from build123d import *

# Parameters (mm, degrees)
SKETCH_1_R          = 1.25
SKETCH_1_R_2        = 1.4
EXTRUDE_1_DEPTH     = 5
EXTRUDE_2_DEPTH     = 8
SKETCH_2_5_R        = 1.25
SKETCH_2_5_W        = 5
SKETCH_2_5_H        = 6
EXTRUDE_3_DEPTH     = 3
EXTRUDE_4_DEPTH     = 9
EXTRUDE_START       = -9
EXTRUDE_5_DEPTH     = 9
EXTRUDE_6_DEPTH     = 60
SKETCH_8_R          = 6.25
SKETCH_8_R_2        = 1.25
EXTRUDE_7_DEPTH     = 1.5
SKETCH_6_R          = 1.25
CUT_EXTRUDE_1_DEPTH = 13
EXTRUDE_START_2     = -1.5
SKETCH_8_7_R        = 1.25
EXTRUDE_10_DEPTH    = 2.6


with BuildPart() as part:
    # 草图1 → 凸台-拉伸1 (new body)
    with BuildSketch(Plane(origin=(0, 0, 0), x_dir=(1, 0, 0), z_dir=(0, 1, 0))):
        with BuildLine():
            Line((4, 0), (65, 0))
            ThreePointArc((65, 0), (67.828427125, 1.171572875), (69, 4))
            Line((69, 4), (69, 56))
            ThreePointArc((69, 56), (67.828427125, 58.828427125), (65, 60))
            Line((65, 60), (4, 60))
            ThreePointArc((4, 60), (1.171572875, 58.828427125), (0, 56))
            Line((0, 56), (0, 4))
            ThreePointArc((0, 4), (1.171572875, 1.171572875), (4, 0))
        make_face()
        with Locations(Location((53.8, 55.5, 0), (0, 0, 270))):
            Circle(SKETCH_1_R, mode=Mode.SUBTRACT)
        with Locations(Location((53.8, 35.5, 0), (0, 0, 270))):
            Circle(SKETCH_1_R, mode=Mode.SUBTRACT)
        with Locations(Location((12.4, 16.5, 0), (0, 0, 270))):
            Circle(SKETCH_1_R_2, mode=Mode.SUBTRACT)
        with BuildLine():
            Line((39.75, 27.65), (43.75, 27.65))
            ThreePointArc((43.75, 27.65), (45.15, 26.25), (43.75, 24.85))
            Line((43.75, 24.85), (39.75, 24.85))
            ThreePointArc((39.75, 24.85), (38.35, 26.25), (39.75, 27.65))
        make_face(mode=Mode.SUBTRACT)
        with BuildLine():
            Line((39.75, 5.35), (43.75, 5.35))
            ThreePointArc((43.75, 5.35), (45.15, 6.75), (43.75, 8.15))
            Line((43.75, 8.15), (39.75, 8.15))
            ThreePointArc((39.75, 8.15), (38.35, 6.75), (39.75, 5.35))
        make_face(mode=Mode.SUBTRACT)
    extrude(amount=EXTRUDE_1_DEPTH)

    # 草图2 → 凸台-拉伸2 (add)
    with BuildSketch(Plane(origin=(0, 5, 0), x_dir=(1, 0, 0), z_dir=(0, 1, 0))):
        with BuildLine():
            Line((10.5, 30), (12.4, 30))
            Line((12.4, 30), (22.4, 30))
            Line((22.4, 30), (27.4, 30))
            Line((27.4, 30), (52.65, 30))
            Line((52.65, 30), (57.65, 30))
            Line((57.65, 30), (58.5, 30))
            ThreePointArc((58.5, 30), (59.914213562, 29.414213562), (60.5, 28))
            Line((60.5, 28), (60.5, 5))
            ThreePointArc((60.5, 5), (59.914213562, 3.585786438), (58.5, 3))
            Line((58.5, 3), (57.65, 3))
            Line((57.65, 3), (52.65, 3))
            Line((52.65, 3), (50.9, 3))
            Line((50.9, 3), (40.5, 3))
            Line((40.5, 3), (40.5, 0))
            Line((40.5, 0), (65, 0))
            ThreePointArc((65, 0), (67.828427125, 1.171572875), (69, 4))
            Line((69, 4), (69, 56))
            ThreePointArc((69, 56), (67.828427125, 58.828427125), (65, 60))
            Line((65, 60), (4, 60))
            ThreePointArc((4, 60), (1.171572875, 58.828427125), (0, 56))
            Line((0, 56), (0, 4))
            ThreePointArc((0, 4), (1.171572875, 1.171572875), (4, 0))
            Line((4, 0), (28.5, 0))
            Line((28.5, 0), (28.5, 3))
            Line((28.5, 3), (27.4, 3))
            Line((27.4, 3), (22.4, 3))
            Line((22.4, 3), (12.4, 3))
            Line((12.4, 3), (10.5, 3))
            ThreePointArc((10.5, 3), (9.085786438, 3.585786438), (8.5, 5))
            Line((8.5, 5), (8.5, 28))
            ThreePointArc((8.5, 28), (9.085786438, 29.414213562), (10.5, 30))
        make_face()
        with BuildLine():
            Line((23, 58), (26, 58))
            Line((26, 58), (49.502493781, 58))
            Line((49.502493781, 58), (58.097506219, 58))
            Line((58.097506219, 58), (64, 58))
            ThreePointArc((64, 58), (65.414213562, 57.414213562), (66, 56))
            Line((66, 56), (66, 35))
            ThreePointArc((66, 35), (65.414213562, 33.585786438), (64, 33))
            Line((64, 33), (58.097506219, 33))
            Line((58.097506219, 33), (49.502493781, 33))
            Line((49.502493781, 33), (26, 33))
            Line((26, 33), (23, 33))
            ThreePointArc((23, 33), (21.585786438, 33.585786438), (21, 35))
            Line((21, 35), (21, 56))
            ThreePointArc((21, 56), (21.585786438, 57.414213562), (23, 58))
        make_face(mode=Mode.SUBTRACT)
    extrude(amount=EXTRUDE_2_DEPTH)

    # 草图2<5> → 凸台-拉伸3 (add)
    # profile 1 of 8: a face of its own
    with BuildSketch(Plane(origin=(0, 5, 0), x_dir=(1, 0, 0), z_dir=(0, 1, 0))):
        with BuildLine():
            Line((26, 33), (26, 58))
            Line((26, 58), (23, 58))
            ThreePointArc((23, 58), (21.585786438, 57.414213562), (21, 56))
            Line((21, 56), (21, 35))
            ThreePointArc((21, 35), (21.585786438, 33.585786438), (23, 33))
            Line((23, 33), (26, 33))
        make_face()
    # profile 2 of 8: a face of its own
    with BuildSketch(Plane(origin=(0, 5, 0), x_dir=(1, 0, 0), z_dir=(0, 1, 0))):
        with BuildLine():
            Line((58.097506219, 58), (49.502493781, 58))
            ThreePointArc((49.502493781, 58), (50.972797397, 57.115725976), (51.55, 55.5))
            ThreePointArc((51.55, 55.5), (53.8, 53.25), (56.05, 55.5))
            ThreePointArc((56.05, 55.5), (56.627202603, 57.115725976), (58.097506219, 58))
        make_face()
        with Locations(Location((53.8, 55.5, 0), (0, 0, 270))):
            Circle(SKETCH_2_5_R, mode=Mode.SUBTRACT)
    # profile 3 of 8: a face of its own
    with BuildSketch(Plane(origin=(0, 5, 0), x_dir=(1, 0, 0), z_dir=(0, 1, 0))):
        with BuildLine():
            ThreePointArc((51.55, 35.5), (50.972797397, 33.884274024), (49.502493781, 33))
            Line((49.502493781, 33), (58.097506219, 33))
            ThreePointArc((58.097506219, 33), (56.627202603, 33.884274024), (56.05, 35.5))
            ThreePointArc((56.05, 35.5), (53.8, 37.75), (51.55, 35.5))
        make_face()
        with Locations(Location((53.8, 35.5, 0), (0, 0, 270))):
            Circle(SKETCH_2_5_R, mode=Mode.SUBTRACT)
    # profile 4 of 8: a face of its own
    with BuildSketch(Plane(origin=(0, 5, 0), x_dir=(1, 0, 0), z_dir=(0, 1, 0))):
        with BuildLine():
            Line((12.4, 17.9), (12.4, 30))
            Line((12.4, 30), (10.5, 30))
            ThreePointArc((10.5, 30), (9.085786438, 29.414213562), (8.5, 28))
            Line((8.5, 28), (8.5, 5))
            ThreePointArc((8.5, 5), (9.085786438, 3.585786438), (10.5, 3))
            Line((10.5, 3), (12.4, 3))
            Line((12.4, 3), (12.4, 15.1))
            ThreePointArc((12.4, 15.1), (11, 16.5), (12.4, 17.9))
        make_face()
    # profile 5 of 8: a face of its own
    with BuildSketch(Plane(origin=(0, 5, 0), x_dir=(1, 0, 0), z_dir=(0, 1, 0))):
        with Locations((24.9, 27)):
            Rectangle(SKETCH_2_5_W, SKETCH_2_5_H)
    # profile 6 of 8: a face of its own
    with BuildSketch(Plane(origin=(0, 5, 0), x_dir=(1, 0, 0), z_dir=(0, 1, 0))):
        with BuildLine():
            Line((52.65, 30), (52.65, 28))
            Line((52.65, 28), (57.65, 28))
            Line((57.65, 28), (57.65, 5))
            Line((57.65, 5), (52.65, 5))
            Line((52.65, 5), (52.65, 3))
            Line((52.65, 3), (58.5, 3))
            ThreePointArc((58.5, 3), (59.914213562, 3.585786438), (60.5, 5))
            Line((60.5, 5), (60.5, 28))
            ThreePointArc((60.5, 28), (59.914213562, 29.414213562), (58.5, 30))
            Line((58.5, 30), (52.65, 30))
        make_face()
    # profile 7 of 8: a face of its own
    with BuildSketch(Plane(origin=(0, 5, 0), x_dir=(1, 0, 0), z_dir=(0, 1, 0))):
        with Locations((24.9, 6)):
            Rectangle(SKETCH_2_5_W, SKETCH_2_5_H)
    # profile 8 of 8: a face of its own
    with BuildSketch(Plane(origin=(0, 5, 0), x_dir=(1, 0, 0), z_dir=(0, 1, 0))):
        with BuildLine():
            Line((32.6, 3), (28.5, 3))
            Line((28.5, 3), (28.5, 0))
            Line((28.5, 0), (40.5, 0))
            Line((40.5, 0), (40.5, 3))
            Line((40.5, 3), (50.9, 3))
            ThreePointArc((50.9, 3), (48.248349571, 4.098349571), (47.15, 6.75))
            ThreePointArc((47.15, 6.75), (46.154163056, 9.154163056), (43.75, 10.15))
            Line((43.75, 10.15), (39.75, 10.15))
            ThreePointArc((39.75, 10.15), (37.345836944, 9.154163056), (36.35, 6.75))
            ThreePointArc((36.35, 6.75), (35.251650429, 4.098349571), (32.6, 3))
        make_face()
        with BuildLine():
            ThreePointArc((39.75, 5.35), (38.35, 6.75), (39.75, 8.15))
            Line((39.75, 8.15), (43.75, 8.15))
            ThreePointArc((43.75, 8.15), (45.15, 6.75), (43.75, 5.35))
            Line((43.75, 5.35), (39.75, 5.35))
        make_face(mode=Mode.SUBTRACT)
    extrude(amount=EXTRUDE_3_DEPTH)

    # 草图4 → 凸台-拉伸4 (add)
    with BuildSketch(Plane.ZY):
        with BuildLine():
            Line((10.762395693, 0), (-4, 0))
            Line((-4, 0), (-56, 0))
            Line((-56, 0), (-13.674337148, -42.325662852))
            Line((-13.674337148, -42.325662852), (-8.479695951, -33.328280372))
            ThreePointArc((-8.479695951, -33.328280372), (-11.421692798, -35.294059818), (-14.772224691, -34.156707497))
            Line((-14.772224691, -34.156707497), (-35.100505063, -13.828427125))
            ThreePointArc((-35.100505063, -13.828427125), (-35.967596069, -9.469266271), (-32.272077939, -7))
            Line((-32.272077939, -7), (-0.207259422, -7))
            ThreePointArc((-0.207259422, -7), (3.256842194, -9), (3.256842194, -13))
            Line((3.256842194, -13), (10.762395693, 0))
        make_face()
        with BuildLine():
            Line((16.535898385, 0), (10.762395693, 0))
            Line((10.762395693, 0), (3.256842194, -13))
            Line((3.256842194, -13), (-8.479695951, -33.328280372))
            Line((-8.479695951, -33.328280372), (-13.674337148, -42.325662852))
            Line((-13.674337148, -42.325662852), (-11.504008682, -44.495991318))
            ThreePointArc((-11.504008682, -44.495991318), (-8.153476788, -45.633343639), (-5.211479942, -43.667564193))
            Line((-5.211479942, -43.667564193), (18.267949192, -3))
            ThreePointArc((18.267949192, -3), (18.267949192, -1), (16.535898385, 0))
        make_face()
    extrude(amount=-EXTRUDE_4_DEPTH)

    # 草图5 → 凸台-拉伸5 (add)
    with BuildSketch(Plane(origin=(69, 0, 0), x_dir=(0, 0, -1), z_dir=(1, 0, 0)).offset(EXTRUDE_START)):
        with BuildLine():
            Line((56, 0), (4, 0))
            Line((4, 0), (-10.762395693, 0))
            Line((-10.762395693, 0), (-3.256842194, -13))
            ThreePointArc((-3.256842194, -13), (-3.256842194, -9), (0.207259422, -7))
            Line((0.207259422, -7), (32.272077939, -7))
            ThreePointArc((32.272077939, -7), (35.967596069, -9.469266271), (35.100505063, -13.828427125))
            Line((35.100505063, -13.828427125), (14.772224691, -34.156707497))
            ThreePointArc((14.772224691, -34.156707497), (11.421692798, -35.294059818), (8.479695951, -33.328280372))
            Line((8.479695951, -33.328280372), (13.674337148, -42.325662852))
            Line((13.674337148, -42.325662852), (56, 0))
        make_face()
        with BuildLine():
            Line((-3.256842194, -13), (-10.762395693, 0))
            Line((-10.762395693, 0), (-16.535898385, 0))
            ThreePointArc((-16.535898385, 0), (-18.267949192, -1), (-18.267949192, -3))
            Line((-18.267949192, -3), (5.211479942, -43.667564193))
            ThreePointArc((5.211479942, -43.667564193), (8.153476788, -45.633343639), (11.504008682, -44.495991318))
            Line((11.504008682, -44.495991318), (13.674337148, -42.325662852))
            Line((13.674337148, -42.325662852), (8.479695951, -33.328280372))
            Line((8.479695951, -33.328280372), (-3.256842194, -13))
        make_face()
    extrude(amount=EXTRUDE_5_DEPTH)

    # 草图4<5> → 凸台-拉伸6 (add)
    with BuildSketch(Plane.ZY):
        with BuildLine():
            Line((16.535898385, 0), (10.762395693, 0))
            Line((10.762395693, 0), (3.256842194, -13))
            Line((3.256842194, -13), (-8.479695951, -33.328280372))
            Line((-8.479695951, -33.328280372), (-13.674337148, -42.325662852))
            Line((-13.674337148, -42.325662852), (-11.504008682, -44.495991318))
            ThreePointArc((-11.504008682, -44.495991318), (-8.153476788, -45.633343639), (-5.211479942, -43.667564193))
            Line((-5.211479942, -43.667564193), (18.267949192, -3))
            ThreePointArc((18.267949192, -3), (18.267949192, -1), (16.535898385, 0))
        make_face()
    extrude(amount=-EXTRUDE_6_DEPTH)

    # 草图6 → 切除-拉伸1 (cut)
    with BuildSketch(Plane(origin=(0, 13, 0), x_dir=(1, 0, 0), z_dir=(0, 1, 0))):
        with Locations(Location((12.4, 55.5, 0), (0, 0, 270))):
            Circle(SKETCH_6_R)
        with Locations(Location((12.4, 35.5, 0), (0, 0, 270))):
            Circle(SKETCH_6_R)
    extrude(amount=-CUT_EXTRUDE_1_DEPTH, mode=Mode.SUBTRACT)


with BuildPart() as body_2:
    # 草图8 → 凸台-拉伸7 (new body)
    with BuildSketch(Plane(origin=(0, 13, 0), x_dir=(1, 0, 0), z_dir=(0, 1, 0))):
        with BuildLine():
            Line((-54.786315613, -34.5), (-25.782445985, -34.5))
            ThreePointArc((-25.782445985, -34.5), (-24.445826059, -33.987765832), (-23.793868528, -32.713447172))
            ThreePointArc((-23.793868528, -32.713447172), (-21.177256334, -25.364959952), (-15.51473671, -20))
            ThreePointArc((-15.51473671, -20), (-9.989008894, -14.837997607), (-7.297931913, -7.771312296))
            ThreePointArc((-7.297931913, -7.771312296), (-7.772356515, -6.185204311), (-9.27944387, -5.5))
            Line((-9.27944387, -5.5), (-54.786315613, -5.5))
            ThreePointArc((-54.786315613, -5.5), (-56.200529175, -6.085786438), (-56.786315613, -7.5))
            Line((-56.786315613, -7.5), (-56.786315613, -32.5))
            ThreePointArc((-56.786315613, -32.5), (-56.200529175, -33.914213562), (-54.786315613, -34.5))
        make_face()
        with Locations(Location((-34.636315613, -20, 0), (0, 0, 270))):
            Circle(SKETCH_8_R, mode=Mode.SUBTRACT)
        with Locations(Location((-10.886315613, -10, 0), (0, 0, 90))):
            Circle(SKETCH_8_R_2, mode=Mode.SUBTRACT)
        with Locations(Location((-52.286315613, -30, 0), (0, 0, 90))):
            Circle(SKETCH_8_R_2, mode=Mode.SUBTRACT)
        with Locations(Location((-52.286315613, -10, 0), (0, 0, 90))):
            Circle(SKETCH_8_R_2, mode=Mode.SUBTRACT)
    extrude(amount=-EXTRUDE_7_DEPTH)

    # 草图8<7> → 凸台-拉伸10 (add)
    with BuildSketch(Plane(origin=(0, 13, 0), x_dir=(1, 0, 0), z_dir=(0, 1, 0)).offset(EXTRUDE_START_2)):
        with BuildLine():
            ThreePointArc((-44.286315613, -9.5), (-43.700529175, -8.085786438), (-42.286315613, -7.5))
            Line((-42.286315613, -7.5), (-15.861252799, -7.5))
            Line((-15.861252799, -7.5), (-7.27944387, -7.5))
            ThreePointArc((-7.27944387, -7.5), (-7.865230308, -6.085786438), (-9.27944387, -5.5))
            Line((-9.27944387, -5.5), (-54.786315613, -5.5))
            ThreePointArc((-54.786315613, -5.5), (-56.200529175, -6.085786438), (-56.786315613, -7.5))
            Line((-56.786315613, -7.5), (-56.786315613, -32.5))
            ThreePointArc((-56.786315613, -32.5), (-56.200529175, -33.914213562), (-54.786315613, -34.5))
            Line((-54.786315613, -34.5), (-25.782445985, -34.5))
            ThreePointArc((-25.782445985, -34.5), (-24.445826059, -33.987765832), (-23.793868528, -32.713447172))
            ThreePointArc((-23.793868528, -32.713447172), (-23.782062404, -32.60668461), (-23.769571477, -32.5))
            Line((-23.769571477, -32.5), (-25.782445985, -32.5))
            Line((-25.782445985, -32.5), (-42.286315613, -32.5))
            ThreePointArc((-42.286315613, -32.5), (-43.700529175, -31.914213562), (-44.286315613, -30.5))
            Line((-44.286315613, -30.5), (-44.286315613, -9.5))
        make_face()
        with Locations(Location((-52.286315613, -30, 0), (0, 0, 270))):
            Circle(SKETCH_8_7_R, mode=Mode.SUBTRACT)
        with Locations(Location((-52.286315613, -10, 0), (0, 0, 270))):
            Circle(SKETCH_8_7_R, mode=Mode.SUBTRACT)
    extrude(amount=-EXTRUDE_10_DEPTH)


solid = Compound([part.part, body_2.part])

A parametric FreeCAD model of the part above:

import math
import FreeCAD as App
import Part
import Sketcher
Q = App.Units.Quantity

doc = App.newDocument("Part")
body = doc.addObject("PartDesign::Body", "Body")

sketch1 = body.newObject("Sketcher::SketchObject", "Sketch")
sketch1.AttachmentSupport = (doc.getObject("XZ_Plane"), [""])
sketch1.MapMode = "FlatFace"
sketch1.addGeometry([
    Part.LineSegment(App.Vector(4, 0, 0), App.Vector(65, 0, 0)),
    Part.ArcOfCircle(Part.Circle(App.Vector(65, -4, 0), App.Vector(0, 0, 1), 4), math.radians(0), math.radians(90)),
    Part.LineSegment(App.Vector(69, -4, 0), App.Vector(69, -56, 0)),
    Part.ArcOfCircle(Part.Circle(App.Vector(65, -56, 0), App.Vector(0, 0, 1), 4), math.radians(-90), math.radians(0)),
    Part.LineSegment(App.Vector(65, -60, 0), App.Vector(4, -60, 0)),
    Part.ArcOfCircle(Part.Circle(App.Vector(4, -56, 0), App.Vector(0, 0, 1), 4), math.radians(180), math.radians(270)),
    Part.LineSegment(App.Vector(0, -56, 0), App.Vector(0, -4, 0)),
    Part.ArcOfCircle(Part.Circle(App.Vector(4, -4, 0), App.Vector(0, 0, 1), 4), math.radians(90), math.radians(180)),
    Part.Circle(App.Vector(12.4, -16.5, 0), App.Vector(0, 0, 1), 1.4),
    Part.LineSegment(App.Vector(43.8, -5.3, 0), App.Vector(39.8, -5.3, 0)),
    Part.ArcOfCircle(Part.Circle(App.Vector(39.8, -6.8, 0), App.Vector(0, 0, 1), 1.4), math.radians(90), math.radians(270)),
    Part.LineSegment(App.Vector(39.8, -8.2, 0), App.Vector(43.8, -8.2, 0)),
    Part.ArcOfCircle(Part.Circle(App.Vector(43.8, -6.8, 0), App.Vector(0, 0, 1), 1.4), math.radians(-90), math.radians(90)),
    Part.ArcOfCircle(Part.Circle(App.Vector(39.8, -26.2, 0), App.Vector(0, 0, 1), 1.4), math.radians(90), math.radians(270)),
    Part.LineSegment(App.Vector(39.8, -27.6, 0), App.Vector(43.8, -27.6, 0)),
    Part.ArcOfCircle(Part.Circle(App.Vector(43.8, -26.2, 0), App.Vector(0, 0, 1), 1.4), math.radians(-90), math.radians(90)),
    Part.LineSegment(App.Vector(43.8, -24.9, 0), App.Vector(39.8, -24.9, 0)),
    Part.Circle(App.Vector(53.8, -35.5, 0), App.Vector(0, 0, 1), 1.2),
    Part.Circle(App.Vector(53.8, -55.5, 0), App.Vector(0, 0, 1), 1.2),
], False)
sketch1.addConstraint([
    Sketcher.Constraint("Tangent", 0, 2, 1, 2),
    Sketcher.Constraint("Tangent", 1, 1, 2, 1),
    Sketcher.Constraint("Tangent", 2, 2, 3, 2),
    Sketcher.Constraint("Tangent", 3, 1, 4, 1),
    Sketcher.Constraint("Tangent", 4, 2, 5, 2),
    Sketcher.Constraint("Tangent", 5, 1, 6, 1),
    Sketcher.Constraint("Tangent", 6, 2, 7, 2),
    Sketcher.Constraint("Tangent", 7, 1, 0, 1),
    Sketcher.Constraint("Tangent", 9, 2, 10, 1),
    Sketcher.Constraint("Tangent", 10, 2, 11, 1),
    Sketcher.Constraint("Tangent", 11, 2, 12, 1),
    Sketcher.Constraint("Tangent", 12, 2, 9, 1),
    Sketcher.Constraint("Tangent", 13, 2, 14, 1),
    Sketcher.Constraint("Tangent", 14, 2, 15, 1),
    Sketcher.Constraint("Tangent", 15, 2, 16, 1),
    Sketcher.Constraint("Tangent", 16, 2, 13, 1),
    Sketcher.Constraint("Horizontal", 0),
    Sketcher.Constraint("Vertical", 2),
    Sketcher.Constraint("Horizontal", 4),
    Sketcher.Constraint("Vertical", 6),
    Sketcher.Constraint("Horizontal", 9),
    Sketcher.Constraint("Horizontal", 11),
    Sketcher.Constraint("Horizontal", 14),
    Sketcher.Constraint("Horizontal", 16),
    Sketcher.Constraint("Equal", 1, 3),
    Sketcher.Constraint("Equal", 3, 5),
    Sketcher.Constraint("Equal", 5, 7),
    Sketcher.Constraint("Equal", 8, 10),
    Sketcher.Constraint("Equal", 12, 13),
    Sketcher.Constraint("Equal", 17, 18),
    Sketcher.Constraint("PointOnObject", 0, 2, -1),
    Sketcher.Constraint("PointOnObject", 5, 1, -2),
    Sketcher.Constraint("Vertical", 10, 3, 13, 3),
    Sketcher.Constraint("Vertical", 12, 3, 15, 3),
    Sketcher.Constraint("Vertical", 17, 3, 18, 3),
    Sketcher.Constraint("Radius", 1, 4.0),
    Sketcher.Constraint("Diameter", 8, 2.8),
    Sketcher.Constraint("Diameter", 17, 2.5),
    Sketcher.Constraint("DistanceX", 0, 1, 0, 2, 61.0),
    Sketcher.Constraint("DistanceX", 9, 2, 9, 1, 4.0),
    Sketcher.Constraint("DistanceY", 2, 2, 2, 1, 52.0),
    Sketcher.Constraint("DistanceY", 18, 3, 17, 3, 20.0),
    Sketcher.Constraint("DistanceX", -1, 1, 8, 3, 12.4),
    Sketcher.Constraint("DistanceY", 8, 3, -1, 1, 16.5),
    Sketcher.Constraint("DistanceX", -1, 1, 17, 3, 53.8),
    Sketcher.Constraint("DistanceY", 17, 3, -1, 1, 35.5),
    Sketcher.Constraint("DistanceY", 13, 3, 10, 3, 19.5),
    Sketcher.Constraint("DistanceX", -1, 1, 10, 3, 39.75),
    Sketcher.Constraint("DistanceY", 10, 3, -1, 1, 6.75),
])
pad1 = body.newObject("PartDesign::Pad", "Pad")
pad1.Profile = sketch1
pad1.Length = 5
pad1.Reversed = True

sketch2 = body.newObject("Sketcher::SketchObject", "Sketch001")
sketch2.AttachmentSupport = (doc.getObject("XZ_Plane"), [""])
sketch2.MapMode = "FlatFace"
sketch2.AttachmentOffset = App.Placement(App.Vector(0, 0, -5), App.Rotation())
sketch2.addGeometry([
    Part.LineSegment(App.Vector(10.5, -30, 0), App.Vector(58.5, -30, 0)),
    Part.ArcOfCircle(Part.Circle(App.Vector(58.5, -28, 0), App.Vector(0, 0, 1), 2), math.radians(-90), math.radians(0)),
    Part.LineSegment(App.Vector(60.5, -28, 0), App.Vector(60.5, -5, 0)),
    Part.ArcOfCircle(Part.Circle(App.Vector(58.5, -5, 0), App.Vector(0, 0, 1), 2), math.radians(0), math.radians(90)),
    Part.LineSegment(App.Vector(58.5, -3, 0), App.Vector(40.5, -3, 0)),
    Part.LineSegment(App.Vector(40.5, -3, 0), App.Vector(40.5, 0, 0)),
    Part.LineSegment(App.Vector(40.5, 0, 0), App.Vector(65, 0, 0)),
    Part.ArcOfCircle(Part.Circle(App.Vector(65, -4, 0), App.Vector(0, 0, 1), 4), math.radians(0), math.radians(90)),
    Part.LineSegment(App.Vector(69, -4, 0), App.Vector(69, -56, 0)),
    Part.ArcOfCircle(Part.Circle(App.Vector(65, -56, 0), App.Vector(0, 0, 1), 4), math.radians(-90), math.radians(0)),
    Part.LineSegment(App.Vector(65, -60, 0), App.Vector(4, -60, 0)),
    Part.ArcOfCircle(Part.Circle(App.Vector(4, -56, 0), App.Vector(0, 0, 1), 4), math.radians(180), math.radians(270)),
    Part.LineSegment(App.Vector(0, -56, 0), App.Vector(0, -4, 0)),
    Part.ArcOfCircle(Part.Circle(App.Vector(4, -4, 0), App.Vector(0, 0, 1), 4), math.radians(90), math.radians(180)),
    Part.LineSegment(App.Vector(4, 0, 0), App.Vector(28.5, 0, 0)),
    Part.LineSegment(App.Vector(28.5, 0, 0), App.Vector(28.5, -3, 0)),
    Part.LineSegment(App.Vector(28.5, -3, 0), App.Vector(10.5, -3, 0)),
    Part.ArcOfCircle(Part.Circle(App.Vector(10.5, -5, 0), App.Vector(0, 0, 1), 2), math.radians(90), math.radians(180)),
    Part.LineSegment(App.Vector(8.5, -5, 0), App.Vector(8.5, -28, 0)),
    Part.ArcOfCircle(Part.Circle(App.Vector(10.5, -28, 0), App.Vector(0, 0, 1), 2), math.radians(-180), math.radians(-90)),
    Part.ArcOfCircle(Part.Circle(App.Vector(23, -56, 0), App.Vector(0, 0, 1), 2), math.radians(-180), math.radians(-90)),
    Part.LineSegment(App.Vector(23, -58, 0), App.Vector(64, -58, 0)),
    Part.ArcOfCircle(Part.Circle(App.Vector(64, -56, 0), App.Vector(0, 0, 1), 2), math.radians(-90), math.radians(0)),
    Part.LineSegment(App.Vector(66, -56, 0), App.Vector(66, -35, 0)),
    Part.ArcOfCircle(Part.Circle(App.Vector(64, -35, 0), App.Vector(0, 0, 1), 2), math.radians(0), math.radians(90)),
    Part.LineSegment(App.Vector(64, -33, 0), App.Vector(23, -33, 0)),
    Part.ArcOfCircle(Part.Circle(App.Vector(23, -35, 0), App.Vector(0, 0, 1), 2), math.radians(90), math.radians(180)),
    Part.LineSegment(App.Vector(21, -35, 0), App.Vector(21, -56, 0)),
], False)
sketch2.addConstraint([
    Sketcher.Constraint("Tangent", 0, 2, 1, 1),
    Sketcher.Constraint("Tangent", 1, 2, 2, 1),
    Sketcher.Constraint("Tangent", 2, 2, 3, 1),
    Sketcher.Constraint("Tangent", 3, 2, 4, 1),
    Sketcher.Constraint("Coincident", 4, 2, 5, 1),
    Sketcher.Constraint("Coincident", 5, 2, 6, 1),
    Sketcher.Constraint("Tangent", 6, 2, 7, 2),
    Sketcher.Constraint("Tangent", 7, 1, 8, 1),
    Sketcher.Constraint("Tangent", 8, 2, 9, 2),
    Sketcher.Constraint("Tangent", 9, 1, 10, 1),
    Sketcher.Constraint("Tangent", 10, 2, 11, 2),
    Sketcher.Constraint("Tangent", 11, 1, 12, 1),
    Sketcher.Constraint("Tangent", 12, 2, 13, 2),
    Sketcher.Constraint("Tangent", 13, 1, 14, 1),
    Sketcher.Constraint("Coincident", 14, 2, 15, 1),
    Sketcher.Constraint("Coincident", 15, 2, 16, 1),
    Sketcher.Constraint("Tangent", 16, 2, 17, 1),
    Sketcher.Constraint("Tangent", 17, 2, 18, 1),
    Sketcher.Constraint("Tangent", 18, 2, 19, 1),
    Sketcher.Constraint("Tangent", 19, 2, 0, 1),
    Sketcher.Constraint("Tangent", 20, 2, 21, 1),
    Sketcher.Constraint("Tangent", 21, 2, 22, 1),
    Sketcher.Constraint("Tangent", 22, 2, 23, 1),
    Sketcher.Constraint("Tangent", 23, 2, 24, 1),
    Sketcher.Constraint("Tangent", 24, 2, 25, 1),
    Sketcher.Constraint("Tangent", 25, 2, 26, 1),
    Sketcher.Constraint("Tangent", 26, 2, 27, 1),
    Sketcher.Constraint("Tangent", 27, 2, 20, 1),
    Sketcher.Constraint("Horizontal", 0),
    Sketcher.Constraint("Vertical", 2),
    Sketcher.Constraint("Horizontal", 4),
    Sketcher.Constraint("Vertical", 5),
    Sketcher.Constraint("Horizontal", 6),
    Sketcher.Constraint("Vertical", 8),
    Sketcher.Constraint("Horizontal", 10),
    Sketcher.Constraint("Vertical", 12),
    Sketcher.Constraint("Horizontal", 14),
    Sketcher.Constraint("Vertical", 15),
    Sketcher.Constraint("Horizontal", 16),
    Sketcher.Constraint("Vertical", 18),
    Sketcher.Constraint("Horizontal", 21),
    Sketcher.Constraint("Vertical", 23),
    Sketcher.Constraint("Horizontal", 25),
    Sketcher.Constraint("Vertical", 27),
    Sketcher.Constraint("Equal", 1, 3),
    Sketcher.Constraint("Equal", 7, 9),
    Sketcher.Constraint("Equal", 9, 11),
    Sketcher.Constraint("Equal", 11, 13),
    Sketcher.Constraint("Equal", 3, 17),
    Sketcher.Constraint("Equal", 17, 19),
    Sketcher.Constraint("Equal", 19, 20),
    Sketcher.Constraint("Equal", 20, 22),
    Sketcher.Constraint("Equal", 22, 24),
    Sketcher.Constraint("Equal", 24, 26),
    Sketcher.Constraint("PointOnObject", 5, 2, -1),
    Sketcher.Constraint("PointOnObject", 11, 1, -2),
    Sketcher.Constraint("PointOnObject", 13, 1, -1),
    Sketcher.Constraint("Horizontal", 3, 3, 17, 3),
    Sketcher.Constraint("Horizontal", 11, 3, 20, 3),
    Sketcher.Constraint("Equal", 6, 14),
    Sketcher.Constraint("Equal", 4, 16),
    Sketcher.Constraint("Radius", 1, 2.0),
    Sketcher.Constraint("Radius", 7, 4.0),
    Sketcher.Constraint("DistanceX", 0, 1, 0, 2, 48.0),
    Sketcher.Constraint("DistanceX", 4, 2, 4, 1, 18.0),
    Sketcher.Constraint("DistanceX", 10, 2, 10, 1, 61.0),
    Sketcher.Constraint("DistanceX", 21, 1, 21, 2, 41.0),
    Sketcher.Constraint("DistanceY", 2, 1, 2, 2, 23.0),
    Sketcher.Constraint("DistanceY", 5, 1, 5, 2, 3.0),
    Sketcher.Constraint("DistanceY", 8, 2, 8, 1, 52.0),
    Sketcher.Constraint("DistanceY", 23, 1, 23, 2, 21.0),
    Sketcher.Constraint("DistanceX", -1, 1, 20, 3, 23.0),
])
pad2 = body.newObject("PartDesign::Pad", "Pad001")
pad2.Profile = sketch2
pad2.Length = 8
pad2.Reversed = True

sketch3 = body.newObject("Sketcher::SketchObject", "Sketch002")
sketch3.AttachmentSupport = (doc.getObject("XZ_Plane"), [""])
sketch3.MapMode = "FlatFace"
sketch3.AttachmentOffset = App.Placement(App.Vector(0, 0, -5), App.Rotation())
sketch3.addGeometry([
    Part.LineSegment(App.Vector(26, -33, 0), App.Vector(26, -58, 0)),
    Part.LineSegment(App.Vector(26, -58, 0), App.Vector(23, -58, 0)),
    Part.ArcOfCircle(Part.Circle(App.Vector(23, -56, 0), App.Vector(0, 0, 1), 2), math.radians(-180), math.radians(-90)),
    Part.LineSegment(App.Vector(21, -56, 0), App.Vector(21, -35, 0)),
    Part.ArcOfCircle(Part.Circle(App.Vector(23, -35, 0), App.Vector(0, 0, 1), 2), math.radians(90), math.radians(180)),
    Part.LineSegment(App.Vector(23, -33, 0), App.Vector(26, -33, 0)),
    Part.LineSegment(App.Vector(58.1, -58, 0), App.Vector(49.5, -58, 0)),
    Part.ArcOfCircle(Part.Circle(App.Vector(49, -55.5, 0), App.Vector(0, 0, 1), 2.6), math.radians(-79), math.radians(0)),
    Part.ArcOfCircle(Part.Circle(App.Vector(53.8, -55.5, 0), App.Vector(0, 0, 1), 2.2), math.radians(0), math.radians(180)),
    Part.ArcOfCircle(Part.Circle(App.Vector(58.6, -55.5, 0), App.Vector(0, 0, 1), 2.6), math.radians(180), math.radians(259)),
    Part.Circle(App.Vector(53.8, -55.5, 0), App.Vector(0, 0, 1), 1.2),
    Part.ArcOfCircle(Part.Circle(App.Vector(49, -35.5, 0), App.Vector(0, 0, 1), 2.6), math.radians(0), math.radians(79)),
    Part.LineSegment(App.Vector(49.5, -33, 0), App.Vector(58.1, -33, 0)),
    Part.ArcOfCircle(Part.Circle(App.Vector(58.6, -35.5, 0), App.Vector(0, 0, 1), 2.6), math.radians(101), math.radians(180)),
    Part.ArcOfCircle(Part.Circle(App.Vector(53.8, -35.5, 0), App.Vector(0, 0, 1), 2.2), math.radians(180), math.radians(360)),
    Part.Circle(App.Vector(53.8, -35.5, 0), App.Vector(0, 0, 1), 1.2),
    Part.LineSegment(App.Vector(12.4, -17.9, 0), App.Vector(12.4, -30, 0)),
    Part.LineSegment(App.Vector(12.4, -30, 0), App.Vector(10.5, -30, 0)),
    Part.ArcOfCircle(Part.Circle(App.Vector(10.5, -28, 0), App.Vector(0, 0, 1), 2), math.radians(-180), math.radians(-90)),
    Part.LineSegment(App.Vector(8.5, -28, 0), App.Vector(8.5, -5, 0)),
    Part.ArcOfCircle(Part.Circle(App.Vector(10.5, -5, 0), App.Vector(0, 0, 1), 2), math.radians(90), math.radians(180)),
    Part.LineSegment(App.Vector(10.5, -3, 0), App.Vector(12.4, -3, 0)),
    Part.LineSegment(App.Vector(12.4, -3, 0), App.Vector(12.4, -15.1, 0)),
    Part.ArcOfCircle(Part.Circle(App.Vector(12.4, -16.5, 0), App.Vector(0, 0, 1), 1.4), math.radians(90), math.radians(270)),
    Part.LineSegment(App.Vector(22.4, -30, 0), App.Vector(22.4, -24, 0)),
    Part.LineSegment(App.Vector(22.4, -24, 0), App.Vector(27.4, -24, 0)),
    Part.LineSegment(App.Vector(27.4, -24, 0), App.Vector(27.4, -30, 0)),
    Part.LineSegment(App.Vector(27.4, -30, 0), App.Vector(22.4, -30, 0)),
    Part.LineSegment(App.Vector(52.6, -30, 0), App.Vector(52.6, -28, 0)),
    Part.LineSegment(App.Vector(52.6, -28, 0), App.Vector(57.6, -28, 0)),
    Part.LineSegment(App.Vector(57.6, -28, 0), App.Vector(57.6, -5, 0)),
    Part.LineSegment(App.Vector(57.6, -5, 0), App.Vector(52.6, -5, 0)),
    Part.LineSegment(App.Vector(52.6, -5, 0), App.Vector(52.6, -3, 0)),
    Part.LineSegment(App.Vector(52.6, -3, 0), App.Vector(58.5, -3, 0)),
    Part.ArcOfCircle(Part.Circle(App.Vector(58.5, -5, 0), App.Vector(0, 0, 1), 2), math.radians(0), math.radians(90)),
    Part.LineSegment(App.Vector(60.5, -5, 0), App.Vector(60.5, -28, 0)),
    Part.ArcOfCircle(Part.Circle(App.Vector(58.5, -28, 0), App.Vector(0, 0, 1), 2), math.radians(-90), math.radians(0)),
    Part.LineSegment(App.Vector(58.5, -30, 0), App.Vector(52.6, -30, 0)),
    Part.LineSegment(App.Vector(22.4, -9, 0), App.Vector(22.4, -3, 0)),
    Part.LineSegment(App.Vector(22.4, -3, 0), App.Vector(27.4, -3, 0)),
    Part.LineSegment(App.Vector(27.4, -3, 0), App.Vector(27.4, -9, 0)),
    Part.LineSegment(App.Vector(27.4, -9, 0), App.Vector(22.4, -9, 0)),
    Part.LineSegment(App.Vector(32.6, -3, 0), App.Vector(28.5, -3, 0)),
    Part.LineSegment(App.Vector(28.5, -3, 0), App.Vector(28.5, 0, 0)),
    Part.LineSegment(App.Vector(28.5, 0, 0), App.Vector(40.5, 0, 0)),
    Part.LineSegment(App.Vector(40.5, 0, 0), App.Vector(40.5, -3, 0)),
    Part.LineSegment(App.Vector(40.5, -3, 0), App.Vector(50.9, -3, 0)),
    Part.ArcOfCircle(Part.Circle(App.Vector(50.9, -6.8, 0), App.Vector(0, 0, 1), 3.8), math.radians(90), math.radians(180)),
    Part.ArcOfCircle(Part.Circle(App.Vector(43.8, -6.8, 0), App.Vector(0, 0, 1), 3.4), math.radians(-90), math.radians(0)),
    Part.LineSegment(App.Vector(43.8, -10.2, 0), App.Vector(39.8, -10.2, 0)),
    Part.ArcOfCircle(Part.Circle(App.Vector(39.8, -6.8, 0), App.Vector(0, 0, 1), 3.4), math.radians(180), math.radians(270)),
    Part.ArcOfCircle(Part.Circle(App.Vector(32.6, -6.8, 0), App.Vector(0, 0, 1), 3.8), math.radians(0), math.radians(90)),
    Part.LineSegment(App.Vector(43.8, -5.3, 0), App.Vector(39.8, -5.3, 0)),
    Part.ArcOfCircle(Part.Circle(App.Vector(39.8, -6.8, 0), App.Vector(0, 0, 1), 1.4), math.radians(90), math.radians(270)),
    Part.LineSegment(App.Vector(39.8, -8.2, 0), App.Vector(43.8, -8.2, 0)),
    Part.ArcOfCircle(Part.Circle(App.Vector(43.8, -6.8, 0), App.Vector(0, 0, 1), 1.4), math.radians(-90), math.radians(90)),
], False)
sketch3.addConstraint([
    Sketcher.Constraint("Coincident", 0, 2, 1, 1),
    Sketcher.Constraint("Tangent", 1, 2, 2, 2),
    Sketcher.Constraint("Tangent", 2, 1, 3, 1),
    Sketcher.Constraint("Tangent", 3, 2, 4, 2),
    Sketcher.Constraint("Tangent", 4, 1, 5, 1),
    Sketcher.Constraint("Coincident", 5, 2, 0, 1),
    Sketcher.Constraint("Coincident", 6, 2, 7, 1),
    Sketcher.Constraint("Tangent", 7, 2, 8, 2),
    Sketcher.Constraint("Tangent", 8, 1, 9, 1),
    Sketcher.Constraint("Coincident", 9, 2, 6, 1),
    Sketcher.Constraint("Coincident", 11, 2, 12, 1),
    Sketcher.Constraint("Coincident", 12, 2, 13, 1),
    Sketcher.Constraint("Tangent", 13, 2, 14, 2),
    Sketcher.Constraint("Tangent", 14, 1, 11, 1),
    Sketcher.Constraint("Coincident", 16, 2, 17, 1),
    Sketcher.Constraint("Tangent", 17, 2, 18, 2),
    Sketcher.Constraint("Tangent", 18, 1, 19, 1),
    Sketcher.Constraint("Tangent", 19, 2, 20, 2),
    Sketcher.Constraint("Tangent", 20, 1, 21, 1),
    Sketcher.Constraint("Coincident", 21, 2, 22, 1),
    Sketcher.Constraint("Coincident", 22, 2, 23, 1),
    Sketcher.Constraint("Coincident", 23, 2, 16, 1),
    Sketcher.Constraint("Coincident", 24, 2, 25, 1),
    Sketcher.Constraint("Coincident", 25, 2, 26, 1),
    Sketcher.Constraint("Coincident", 26, 2, 27, 1),
    Sketcher.Constraint("Coincident", 27, 2, 24, 1),
    Sketcher.Constraint("Coincident", 28, 2, 29, 1),
    Sketcher.Constraint("Coincident", 29, 2, 30, 1),
    Sketcher.Constraint("Coincident", 30, 2, 31, 1),
    Sketcher.Constraint("Coincident", 31, 2, 32, 1),
    Sketcher.Constraint("Coincident", 32, 2, 33, 1),
    Sketcher.Constraint("Tangent", 33, 2, 34, 2),
    Sketcher.Constraint("Tangent", 34, 1, 35, 1),
    Sketcher.Constraint("Tangent", 35, 2, 36, 2),
    Sketcher.Constraint("Tangent", 36, 1, 37, 1),
    Sketcher.Constraint("Coincident", 37, 2, 28, 1),
    Sketcher.Constraint("Coincident", 38, 2, 39, 1),
    Sketcher.Constraint("Coincident", 39, 2, 40, 1),
    Sketcher.Constraint("Coincident", 40, 2, 41, 1),
    Sketcher.Constraint("Coincident", 41, 2, 38, 1),
    Sketcher.Constraint("Coincident", 42, 2, 43, 1),
    Sketcher.Constraint("Coincident", 43, 2, 44, 1),
    Sketcher.Constraint("Coincident", 44, 2, 45, 1),
    Sketcher.Constraint("Coincident", 45, 2, 46, 1),
    Sketcher.Constraint("Tangent", 46, 2, 47, 1),
    Sketcher.Constraint("Tangent", 47, 2, 48, 2),
    Sketcher.Constraint("Tangent", 48, 1, 49, 1),
    Sketcher.Constraint("Tangent", 49, 2, 50, 2),
    Sketcher.Constraint("Tangent", 50, 1, 51, 1),
    Sketcher.Constraint("Tangent", 51, 2, 42, 1),
    Sketcher.Constraint("Tangent", 52, 2, 53, 1),
    Sketcher.Constraint("Tangent", 53, 2, 54, 1),
    Sketcher.Constraint("Tangent", 54, 2, 55, 1),
    Sketcher.Constraint("Tangent", 55, 2, 52, 1),
    Sketcher.Constraint("Vertical", 0),
    Sketcher.Constraint("Horizontal", 1),
    Sketcher.Constraint("Vertical", 3),
    Sketcher.Constraint("Horizontal", 5),
    Sketcher.Constraint("Horizontal", 6),
    Sketcher.Constraint("Horizontal", 12),
    Sketcher.Constraint("Vertical", 16),
    Sketcher.Constraint("Horizontal", 17),
    Sketcher.Constraint("Vertical", 19),
    Sketcher.Constraint("Horizontal", 21),
    Sketcher.Constraint("Vertical", 22),
    Sketcher.Constraint("Vertical", 24),
    Sketcher.Constraint("Horizontal", 25),
    Sketcher.Constraint("Vertical", 26),
    Sketcher.Constraint("Horizontal", 27),
    Sketcher.Constraint("Vertical", 28),
    Sketcher.Constraint("Horizontal", 29),
    Sketcher.Constraint("Vertical", 30),
    Sketcher.Constraint("Horizontal", 31),
    Sketcher.Constraint("Vertical", 32),
    Sketcher.Constraint("Horizontal", 33),
    Sketcher.Constraint("Vertical", 35),
    Sketcher.Constraint("Horizontal", 37),
    Sketcher.Constraint("Vertical", 38),
    Sketcher.Constraint("Horizontal", 39),
    Sketcher.Constraint("Vertical", 40),
    Sketcher.Constraint("Horizontal", 41),
    Sketcher.Constraint("Horizontal", 42),
    Sketcher.Constraint("Vertical", 43),
    Sketcher.Constraint("Horizontal", 44),
    Sketcher.Constraint("Vertical", 45),
    Sketcher.Constraint("Horizontal", 46),
    Sketcher.Constraint("Horizontal", 49),
    Sketcher.Constraint("Horizontal", 52),
    Sketcher.Constraint("Horizontal", 54),
    Sketcher.Constraint("Coincident", 10, 3, 8, 3),
    Sketcher.Constraint("Coincident", 15, 3, 14, 3),
    Sketcher.Constraint("Coincident", 53, 3, 50, 3),
    Sketcher.Constraint("Coincident", 55, 3, 48, 3),
    Sketcher.Constraint("Equal", 2, 4),
    Sketcher.Constraint("Equal", 7, 9),
    Sketcher.Constraint("Equal", 9, 11),
    Sketcher.Constraint("Equal", 11, 13),
    Sketcher.Constraint("Equal", 8, 14),
    Sketcher.Constraint("Equal", 10, 15),
    Sketcher.Constraint("Equal", 4, 18),
    Sketcher.Constraint("Equal", 18, 20),
    Sketcher.Constraint("Equal", 20, 34),
    Sketcher.Constraint("Equal", 34, 36),
    Sketcher.Constraint("Equal", 47, 51),
    Sketcher.Constraint("Equal", 23, 53),
    Sketcher.Constraint("PointOnObject", 43, 2, -1),
    Sketcher.Constraint("Horizontal", 7, 3, 8, 3),
    Sketcher.Constraint("Horizontal", 8, 3, 9, 3),
    Sketcher.Constraint("Horizontal", 11, 3, 13, 3),
    Sketcher.Constraint("Horizontal", 13, 3, 14, 3),
    Sketcher.Constraint("Horizontal", 20, 3, 34, 3),
    Sketcher.Constraint("Horizontal", 18, 3, 36, 3),
    Sketcher.Constraint("Horizontal", 47, 3, 48, 3),
    Sketcher.Constraint("Horizontal", 50, 3, 51, 3),
    Sketcher.Constraint("Horizontal", 1, 2, 6, 2),
    Sketcher.Constraint("Horizontal", 5, 2, 11, 2),
    Sketcher.Constraint("Horizontal", 17, 2, 26, 2),
    Sketcher.Constraint("Horizontal", 18, 1, 28, 2),
    Sketcher.Constraint("Horizontal", 19, 2, 30, 2),
    Sketcher.Constraint("Horizontal", 33, 2, 38, 2),
    Sketcher.Constraint("Horizontal", 39, 2, 42, 2),
    Sketcher.Constraint("Vertical", 7, 3, 11, 3),
    Sketcher.Constraint("Vertical", 6, 2, 11, 2),
    Sketcher.Constraint("Vertical", 23, 3, 16, 2),
    Sketcher.Constraint("Vertical", 16, 2, 21, 2),
    Sketcher.Constraint("Vertical", 28, 2, 31, 2),
    Sketcher.Constraint("Vertical", 27, 2, 38, 2),
    Sketcher.Constraint("Vertical", 26, 2, 39, 2),
    Sketcher.Constraint("Equal", 27, 29),
    Sketcher.Constraint("Equal", 16, 22),
    Sketcher.Constraint("Equal", 26, 38),
    Sketcher.Constraint("Equal", 5, 43),
    Sketcher.Constraint("Radius", 2, 2.0),
    Sketcher.Constraint("Diameter", 10, 2.5),
    Sketcher.Constraint("Radius", 23, 1.4),
    Sketcher.Constraint("Radius", 48, 3.4),
    Sketcher.Constraint("DistanceX", 1, 2, 1, 1, 3.0),
    Sketcher.Constraint("DistanceX", 25, 1, 25, 2, 5.0),
    Sketcher.Constraint("DistanceX", 44, 1, 44, 2, 12.0),
    Sketcher.Constraint("DistanceX", 49, 2, 49, 1, 4.0),
    Sketcher.Constraint("DistanceY", 0, 2, 0, 1, 25.0),
    Sketcher.Constraint("DistanceY", 19, 1, 19, 2, 23.0),
    Sketcher.Constraint("DistanceY", 24, 1, 24, 2, 6.0),
    Sketcher.Constraint("Radius", 7, 2.55),
    Sketcher.Constraint("Radius", 8, 2.25),
    Sketcher.Constraint("Radius", 47, 3.75),
    Sketcher.Constraint("DistanceX", 17, 2, 17, 1, 1.9),
    Sketcher.Constraint("DistanceX", 42, 2, 42, 1, 4.1),
    Sketcher.Constraint("DistanceX", -1, 1, 2, 3, 23.0),
    Sketcher.Constraint("DistanceY", 2, 3, -1, 1, 56.0),
    Sketcher.Constraint("DistanceX", -1, 1, 7, 3, 49.0),
    Sketcher.Constraint("DistanceX", 33, 1, 33, 2, 5.85),
    Sketcher.Constraint("DistanceY", 7, 3, -1, 1, 55.5),
    Sketcher.Constraint("DistanceX", -1, 1, 18, 3, 10.5),
    Sketcher.Constraint("DistanceX", -1, 1, 34, 3, 58.5),
    Sketcher.Constraint("DistanceX", -1, 1, 47, 3, 50.9),
    Sketcher.Constraint("DistanceX", -1, 1, 24, 2, 22.4),
])
pad3 = body.newObject("PartDesign::Pad", "Pad002")
pad3.Profile = sketch3
pad3.Length = 3
pad3.Reversed = True

sketch4 = body.newObject("Sketcher::SketchObject", "Sketch003")
sketch4.AttachmentSupport = (doc.getObject("YZ_Plane"), [""])
sketch4.MapMode = "FlatFace"
sketch4.addGeometry([
    Part.LineSegment(App.Vector(0, -56, 0), App.Vector(-44.5, -11.5, 0)),
    Part.ArcOfCircle(Part.Circle(App.Vector(-41.7, -8.7, 0), App.Vector(0, 0, 1), 4), math.radians(120), math.radians(225)),
    Part.LineSegment(App.Vector(-43.7, -5.2, 0), App.Vector(-3, 18.3, 0)),
    Part.ArcOfCircle(Part.Circle(App.Vector(-2, 16.5, 0), App.Vector(0, 0, 1), 2), math.radians(0), math.radians(120)),
    Part.LineSegment(App.Vector(0, 16.5, 0), App.Vector(0, -56, 0)),
    Part.ArcOfCircle(Part.Circle(App.Vector(-31.3, -11.9, 0), App.Vector(0, 0, 1), 4), math.radians(120), math.radians(225)),
    Part.LineSegment(App.Vector(-34.2, -14.8, 0), App.Vector(-13.8, -35.1, 0)),
    Part.ArcOfCircle(Part.Circle(App.Vector(-11, -32.3, 0), App.Vector(0, 0, 1), 4), math.radians(-135), math.radians(0)),
    Part.LineSegment(App.Vector(-7, -32.3, 0), App.Vector(-7, -0.2, 0)),
    Part.ArcOfCircle(Part.Circle(App.Vector(-11, -0.2, 0), App.Vector(0, 0, 1), 4), math.radians(0), math.radians(120)),
    Part.LineSegment(App.Vector(-13, 3.3, 0), App.Vector(-33.3, -8.5, 0)),
], False)
sketch4.addConstraint([
    Sketcher.Constraint("Tangent", 0, 2, 1, 2),
    Sketcher.Constraint("Tangent", 1, 1, 2, 1),
    Sketcher.Constraint("Tangent", 2, 2, 3, 2),
    Sketcher.Constraint("Tangent", 3, 1, 4, 1),
    Sketcher.Constraint("Coincident", 4, 2, 0, 1),
    Sketcher.Constraint("Tangent", 5, 2, 6, 1),
    Sketcher.Constraint("Tangent", 6, 2, 7, 1),
    Sketcher.Constraint("Tangent", 7, 2, 8, 1),
    Sketcher.Constraint("Tangent", 8, 2, 9, 1),
    Sketcher.Constraint("Tangent", 9, 2, 10, 1),
    Sketcher.Constraint("Tangent", 10, 2, 5, 1),
    Sketcher.Constraint("Vertical", 4),
    Sketcher.Constraint("Vertical", 8),
    Sketcher.Constraint("Equal", 1, 5),
    Sketcher.Constraint("Equal", 5, 7),
    Sketcher.Constraint("Equal", 7, 9),
    Sketcher.Constraint("PointOnObject", 3, 1, -2),
    Sketcher.Constraint("Parallel", 0, 6),
    Sketcher.Constraint("Parallel", 2, 10),
    Sketcher.Constraint("Radius", 1, 4.0),
    Sketcher.Constraint("Radius", 3, 2.0),
    Sketcher.Constraint("Angle", 0, Q("135 deg")),
    Sketcher.Constraint("Angle", 2, Q("30 deg")),
    Sketcher.Constraint("DistanceX", 7, 3, -1, 1, 11.0),
    Sketcher.Constraint("DistanceY", 4, 2, -1, 1, 56.0),
    Sketcher.Constraint("DistanceY", 4, 2, 4, 1, 72.535898),
    Sketcher.Constraint("DistanceY", 8, 1, 8, 2, 32.064819),
    Sketcher.Constraint("DistanceY", 9, 3, -1, 1, 0.207259),
])
pad4 = body.newObject("PartDesign::Pad", "Pad003")
pad4.Profile = sketch4
pad4.Length = 9

sketch5 = body.newObject("Sketcher::SketchObject", "Sketch004")
sketch5.AttachmentSupport = (doc.getObject("YZ_Plane"), [""])
sketch5.MapMode = "FlatFace"
sketch5.AttachmentOffset = App.Placement(App.Vector(0, 0, 60), App.Rotation())
sketch5.addGeometry([
    Part.LineSegment(App.Vector(0, -56, 0), App.Vector(0, 16.5, 0)),
    Part.ArcOfCircle(Part.Circle(App.Vector(-2, 16.5, 0), App.Vector(0, 0, 1), 2), math.radians(0), math.radians(120)),
    Part.LineSegment(App.Vector(-3, 18.3, 0), App.Vector(-43.7, -5.2, 0)),
    Part.ArcOfCircle(Part.Circle(App.Vector(-41.7, -8.7, 0), App.Vector(0, 0, 1), 4), math.radians(120), math.radians(225)),
    Part.LineSegment(App.Vector(-44.5, -11.5, 0), App.Vector(0, -56, 0)),
    Part.ArcOfCircle(Part.Circle(App.Vector(-11, -0.2, 0), App.Vector(0, 0, 1), 4), math.radians(0), math.radians(120)),
    Part.LineSegment(App.Vector(-7, -0.2, 0), App.Vector(-7, -32.3, 0)),
    Part.ArcOfCircle(Part.Circle(App.Vector(-11, -32.3, 0), App.Vector(0, 0, 1), 4), math.radians(-135), math.radians(0)),
    Part.LineSegment(App.Vector(-13.8, -35.1, 0), App.Vector(-34.2, -14.8, 0)),
    Part.ArcOfCircle(Part.Circle(App.Vector(-31.3, -11.9, 0), App.Vector(0, 0, 1), 4), math.radians(120), math.radians(225)),
    Part.LineSegment(App.Vector(-33.3, -8.5, 0), App.Vector(-13, 3.3, 0)),
], False)
sketch5.addConstraint([
    Sketcher.Constraint("Tangent", 0, 2, 1, 1),
    Sketcher.Constraint("Tangent", 1, 2, 2, 1),
    Sketcher.Constraint("Tangent", 2, 2, 3, 1),
    Sketcher.Constraint("Tangent", 3, 2, 4, 1),
    Sketcher.Constraint("Coincident", 4, 2, 0, 1),
    Sketcher.Constraint("Tangent", 5, 1, 6, 1),
    Sketcher.Constraint("Tangent", 6, 2, 7, 2),
    Sketcher.Constraint("Tangent", 7, 1, 8, 1),
    Sketcher.Constraint("Tangent", 8, 2, 9, 2),
    Sketcher.Constraint("Tangent", 9, 1, 10, 1),
    Sketcher.Constraint("Tangent", 10, 2, 5, 2),
    Sketcher.Constraint("Vertical", 0),
    Sketcher.Constraint("Vertical", 6),
    Sketcher.Constraint("Equal", 3, 5),
    Sketcher.Constraint("Equal", 5, 7),
    Sketcher.Constraint("Equal", 7, 9),
    Sketcher.Constraint("PointOnObject", 0, 2, -2),
    Sketcher.Constraint("Parallel", 4, 8),
    Sketcher.Constraint("Parallel", 2, 10),
    Sketcher.Constraint("Radius", 1, 2.0),
    Sketcher.Constraint("Radius", 3, 4.0),
    Sketcher.Constraint("Angle", 2, Q("-150 deg")),
    Sketcher.Constraint("Angle", 4, Q("-45 deg")),
    Sketcher.Constraint("DistanceX", 5, 3, -1, 1, 11.0),
    Sketcher.Constraint("DistanceY", 4, 2, -1, 1, 56.0),
    Sketcher.Constraint("DistanceY", 0, 1, 0, 2, 72.535898),
    Sketcher.Constraint("DistanceY", 6, 2, 6, 1, 32.064819),
    Sketcher.Constraint("DistanceY", 5, 3, -1, 1, 0.207259),
])
pad5 = body.newObject("PartDesign::Pad", "Pad004")
pad5.Profile = sketch5
pad5.Length = 9

sketch6 = body.newObject("Sketcher::SketchObject", "Sketch005")
sketch6.AttachmentSupport = (doc.getObject("YZ_Plane"), [""])
sketch6.MapMode = "FlatFace"
sketch6.addGeometry([
    Part.LineSegment(App.Vector(0, 16.5, 0), App.Vector(0, 10.8, 0)),
    Part.LineSegment(App.Vector(0, 10.8, 0), App.Vector(-13, 3.3, 0)),
    Part.LineSegment(App.Vector(-13, 3.3, 0), App.Vector(-33.3, -8.5, 0)),
    Part.LineSegment(App.Vector(-33.3, -8.5, 0), App.Vector(-42.3, -13.7, 0)),
    Part.LineSegment(App.Vector(-42.3, -13.7, 0), App.Vector(-44.5, -11.5, 0)),
    Part.ArcOfCircle(Part.Circle(App.Vector(-41.7, -8.7, 0), App.Vector(0, 0, 1), 4), math.radians(120), math.radians(225)),
    Part.LineSegment(App.Vector(-43.7, -5.2, 0), App.Vector(-3, 18.3, 0)),
    Part.ArcOfCircle(Part.Circle(App.Vector(-2, 16.5, 0), App.Vector(0, 0, 1), 2), math.radians(0), math.radians(120)),
], False)
sketch6.addConstraint([
    Sketcher.Constraint("Coincident", 0, 2, 1, 1),
    Sketcher.Constraint("Coincident", 1, 2, 2, 1),
    Sketcher.Constraint("Coincident", 2, 2, 3, 1),
    Sketcher.Constraint("Coincident", 3, 2, 4, 1),
    Sketcher.Constraint("Tangent", 4, 2, 5, 2),
    Sketcher.Constraint("Tangent", 5, 1, 6, 1),
    Sketcher.Constraint("Tangent", 6, 2, 7, 2),
    Sketcher.Constraint("Tangent", 7, 1, 0, 1),
    Sketcher.Constraint("Vertical", 0),
    Sketcher.Constraint("PointOnObject", 0, 2, -2),
    Sketcher.Constraint("Parallel", 1, 2),
    Sketcher.Constraint("Parallel", 2, 3),
    Sketcher.Constraint("Parallel", 3, 6),
    Sketcher.Constraint("Radius", 5, 4.0),
    Sketcher.Constraint("Radius", 7, 2.0),
    Sketcher.Constraint("Angle", 1, Q("-150 deg")),
    Sketcher.Constraint("Angle", 4, Q("135 deg")),
    Sketcher.Constraint("DistanceX", 1, 2, -1, 1, 13.0),
    Sketcher.Constraint("DistanceY", -1, 1, 7, 3, 16.535898),
    Sketcher.Constraint("DistanceX", 3, 2, 5, 3, 0.658099),
    Sketcher.Constraint("Distance", 6, 46.958858),
    Sketcher.Constraint("DistanceX", 2, 2, -1, 1, 33.32828),
])
pad6 = body.newObject("PartDesign::Pad", "Pad005")
pad6.Profile = sketch6
pad6.Length = 60

sketch7 = body.newObject("Sketcher::SketchObject", "Sketch006")
sketch7.AttachmentSupport = (doc.getObject("XZ_Plane"), [""])
sketch7.MapMode = "FlatFace"
sketch7.AttachmentOffset = App.Placement(App.Vector(0, 0, -13), App.Rotation())
sketch7.addGeometry([
    Part.Circle(App.Vector(12.4, -55.5, 0), App.Vector(0, 0, 1), 1.2),
    Part.Circle(App.Vector(12.4, -35.5, 0), App.Vector(0, 0, 1), 1.2),
], False)
sketch7.addConstraint([
    Sketcher.Constraint("Equal", 0, 1),
    Sketcher.Constraint("Vertical", 0, 3, 1, 3),
    Sketcher.Constraint("Diameter", 0, 2.5),
    Sketcher.Constraint("DistanceY", 0, 3, 1, 3, 20.0),
    Sketcher.Constraint("DistanceX", -1, 1, 0, 3, 12.4),
    Sketcher.Constraint("DistanceY", 0, 3, -1, 1, 55.5),
])
pocket1 = body.newObject("PartDesign::Pocket", "Pocket")
pocket1.Profile = sketch7
pocket1.Length = 13
pocket1.Reversed = True
body2 = doc.addObject("PartDesign::Body", "Body001")

sketch8 = body2.newObject("Sketcher::SketchObject", "Sketch007")
sketch8.AttachmentSupport = (doc.getObject("XZ_Plane001"), [""])
sketch8.MapMode = "FlatFace"
sketch8.AttachmentOffset = App.Placement(App.Vector(0, 0, -13), App.Rotation())
sketch8.addGeometry([
    Part.LineSegment(App.Vector(-54.8, 34.5, 0), App.Vector(-25.8, 34.5, 0)),
    Part.ArcOfCircle(Part.Circle(App.Vector(-25.8, 32.5, 0), App.Vector(0, 0, 1), 2), math.radians(6), math.radians(90)),
    Part.ArcOfCircle(Part.Circle(App.Vector(-7.1, 34.5, 0), App.Vector(0, 0, 1), 16.7), math.radians(-174), math.radians(-120)),
    Part.ArcOfCircle(Part.Circle(App.Vector(-23.9, 5.5, 0), App.Vector(0, 0, 1), 16.7), math.radians(8), math.radians(60)),
    Part.ArcOfCircle(Part.Circle(App.Vector(-9.3, 7.5, 0), App.Vector(0, 0, 1), 2), math.radians(-90), math.radians(8)),
    Part.LineSegment(App.Vector(-9.3, 5.5, 0), App.Vector(-54.8, 5.5, 0)),
    Part.ArcOfCircle(Part.Circle(App.Vector(-54.8, 7.5, 0), App.Vector(0, 0, 1), 2), math.radians(-180), math.radians(-90)),
    Part.LineSegment(App.Vector(-56.8, 7.5, 0), App.Vector(-56.8, 32.5, 0)),
    Part.ArcOfCircle(Part.Circle(App.Vector(-54.8, 32.5, 0), App.Vector(0, 0, 1), 2), math.radians(90), math.radians(180)),
    Part.Circle(App.Vector(-52.3, 30, 0), App.Vector(0, 0, 1), 1.2),
    Part.Circle(App.Vector(-34.6, 20, 0), App.Vector(0, 0, 1), 6.2),
    Part.Circle(App.Vector(-52.3, 10, 0), App.Vector(0, 0, 1), 1.2),
    Part.Circle(App.Vector(-10.9, 10, 0), App.Vector(0, 0, 1), 1.2),
], False)
sketch8.addConstraint([
    Sketcher.Constraint("Tangent", 0, 2, 1, 2),
    Sketcher.Constraint("Tangent", 1, 1, 2, 1),
    Sketcher.Constraint("Coincident", 2, 2, 3, 2),
    Sketcher.Constraint("Tangent", 3, 1, 4, 2),
    Sketcher.Constraint("Tangent", 4, 1, 5, 1),
    Sketcher.Constraint("Tangent", 5, 2, 6, 2),
    Sketcher.Constraint("Tangent", 6, 1, 7, 1),
    Sketcher.Constraint("Tangent", 7, 2, 8, 2),
    Sketcher.Constraint("Tangent", 8, 1, 0, 1),
    Sketcher.Constraint("Horizontal", 0),
    Sketcher.Constraint("Horizontal", 5),
    Sketcher.Constraint("Vertical", 7),
    Sketcher.Constraint("Equal", 1, 4),
    Sketcher.Constraint("Equal", 4, 6),
    Sketcher.Constraint("Equal", 6, 8),
    Sketcher.Constraint("Equal", 9, 11),
    Sketcher.Constraint("Equal", 11, 12),
    Sketcher.Constraint("Horizontal", 11, 3, 12, 3),
    Sketcher.Constraint("Horizontal", 2, 3, 0, 2),
    Sketcher.Constraint("Horizontal", 10, 3, 2, 2),
    Sketcher.Constraint("Horizontal", 3, 3, 4, 1),
    Sketcher.Constraint("Vertical", 9, 3, 11, 3),
    Sketcher.Constraint("Radius", 1, 2.0),
    Sketcher.Constraint("Diameter", 9, 2.5),
    Sketcher.Constraint("Diameter", 10, 12.5),
    Sketcher.Constraint("DistanceY", 7, 1, 7, 2, 25.0),
    Sketcher.Constraint("Radius", 2, 16.74),
    Sketcher.Constraint("DistanceY", -1, 1, 9, 3, 30.0),
    Sketcher.Constraint("DistanceY", -1, 1, 10, 3, 20.0),
    Sketcher.Constraint("DistanceY", -1, 1, 11, 3, 10.0),
    Sketcher.Constraint("DistanceX", 3, 3, 12, 3, 13.0),
    Sketcher.Constraint("DistanceY", -1, 1, 1, 3, 32.5),
    Sketcher.Constraint("DistanceX", 6, 3, 3, 3, 30.9),
    Sketcher.Constraint("DistanceX", 8, 3, 9, 3, 2.5),
    Sketcher.Constraint("DistanceX", 10, 3, 3, 3, 10.75),
    Sketcher.Constraint("Radius", 3, 16.743158),
    Sketcher.Constraint("DistanceX", 1, 1, -1, 1, 23.793869),
])
pad7 = body2.newObject("PartDesign::Pad", "Pad006")
pad7.Profile = sketch8
pad7.Length = 1.5

sketch9 = body2.newObject("Sketcher::SketchObject", "Sketch008")
sketch9.AttachmentSupport = (doc.getObject("XZ_Plane001"), [""])
sketch9.MapMode = "FlatFace"
sketch9.AttachmentOffset = App.Placement(App.Vector(0, 0, -11.5), App.Rotation())
sketch9.addGeometry([
    Part.ArcOfCircle(Part.Circle(App.Vector(-42.29, 9.5, 0), App.Vector(0, 0, 1), 2), math.radians(-180), math.radians(-90)),
    Part.LineSegment(App.Vector(-42.29, 7.5, 0), App.Vector(-7.28, 7.5, 0)),
    Part.ArcOfCircle(Part.Circle(App.Vector(-9.28, 7.5, 0), App.Vector(0, 0, 1), 2), math.radians(-90), math.radians(0)),
    Part.LineSegment(App.Vector(-9.28, 5.5, 0), App.Vector(-54.79, 5.5, 0)),
    Part.ArcOfCircle(Part.Circle(App.Vector(-54.79, 7.5, 0), App.Vector(0, 0, 1), 2), math.radians(-180), math.radians(-90)),
    Part.LineSegment(App.Vector(-56.79, 7.5, 0), App.Vector(-56.79, 32.5, 0)),
    Part.ArcOfCircle(Part.Circle(App.Vector(-54.79, 32.5, 0), App.Vector(0, 0, 1), 2), math.radians(90), math.radians(180)),
    Part.LineSegment(App.Vector(-54.79, 34.5, 0), App.Vector(-25.78, 34.5, 0)),
    Part.ArcOfCircle(Part.Circle(App.Vector(-25.78, 32.5, 0), App.Vector(0, 0, 1), 2), math.radians(6), math.radians(90)),
    Part.ArcOfCircle(Part.Circle(App.Vector(-7.15, 34.5, 0), App.Vector(0, 0, 1), 16.74), math.radians(-173.87), math.radians(-173.14)),
    Part.LineSegment(App.Vector(-23.77, 32.5, 0), App.Vector(-42.29, 32.5, 0)),
    Part.ArcOfCircle(Part.Circle(App.Vector(-42.29, 30.5, 0), App.Vector(0, 0, 1), 2), math.radians(90), math.radians(180)),
    Part.LineSegment(App.Vector(-44.29, 30.5, 0), App.Vector(-44.29, 9.5, 0)),
    Part.Circle(App.Vector(-52.29, 30, 0), App.Vector(0, 0, 1), 1.25),
    Part.Circle(App.Vector(-52.29, 10, 0), App.Vector(0, 0, 1), 1.25),
], False)
sketch9.addConstraint([
    Sketcher.Constraint("Tangent", 0, 2, 1, 1),
    Sketcher.Constraint("Coincident", 1, 2, 2, 2),
    Sketcher.Constraint("Tangent", 2, 1, 3, 1),
    Sketcher.Constraint("Tangent", 3, 2, 4, 2),
    Sketcher.Constraint("Tangent", 4, 1, 5, 1),
    Sketcher.Constraint("Tangent", 5, 2, 6, 2),
    Sketcher.Constraint("Tangent", 6, 1, 7, 1),
    Sketcher.Constraint("Tangent", 7, 2, 8, 2),
    Sketcher.Constraint("Tangent", 8, 1, 9, 1),
    Sketcher.Constraint("Coincident", 9, 2, 10, 1),
    Sketcher.Constraint("Tangent", 10, 2, 11, 1),
    Sketcher.Constraint("Tangent", 11, 2, 12, 1),
    Sketcher.Constraint("Tangent", 12, 2, 0, 1),
    Sketcher.Constraint("Horizontal", 1),
    Sketcher.Constraint("Horizontal", 3),
    Sketcher.Constraint("Vertical", 5),
    Sketcher.Constraint("Horizontal", 7),
    Sketcher.Constraint("Horizontal", 10),
    Sketcher.Constraint("Vertical", 12),
    Sketcher.Constraint("Equal", 0, 2),
    Sketcher.Constraint("Equal", 2, 4),
    Sketcher.Constraint("Equal", 4, 6),
    Sketcher.Constraint("Equal", 6, 8),
    Sketcher.Constraint("Equal", 8, 11),
    Sketcher.Constraint("Equal", 13, 14),
    Sketcher.Constraint("Horizontal", 4, 3, 0, 2),
    Sketcher.Constraint("Horizontal", 9, 3, 6, 1),
    Sketcher.Constraint("Horizontal", 5, 2, 9, 2),
    Sketcher.Constraint("Vertical", 13, 3, 14, 3),
    Sketcher.Constraint("Radius", 0, 2.0),
    Sketcher.Constraint("Diameter", 13, 2.5),
    Sketcher.Constraint("DistanceY", 5, 1, 5, 2, 25.0),
    Sketcher.Constraint("DistanceY", -1, 1, 13, 3, 30.0),
    Sketcher.Constraint("DistanceY", -1, 1, 14, 3, 10.0),
    Sketcher.Constraint("DistanceX", 13, 3, 11, 3, 10.0),
    Sketcher.Constraint("DistanceY", -1, 1, 0, 3, 9.5),
    Sketcher.Constraint("DistanceX", 4, 3, 0, 3, 12.5),
    Sketcher.Constraint("Radius", 9, 16.739994),
    Sketcher.Constraint("DistanceX", 1, 1, 1, 2, 35.006872),
    Sketcher.Constraint("DistanceX", 7, 1, 7, 2, 29.00387),
    Sketcher.Constraint("DistanceX", 9, 3, -1, 1, 7.149481),
])
pad8 = body2.newObject("PartDesign::Pad", "Pad007")
pad8.Profile = sketch9
pad8.Length = 2.6

doc.recompute()
